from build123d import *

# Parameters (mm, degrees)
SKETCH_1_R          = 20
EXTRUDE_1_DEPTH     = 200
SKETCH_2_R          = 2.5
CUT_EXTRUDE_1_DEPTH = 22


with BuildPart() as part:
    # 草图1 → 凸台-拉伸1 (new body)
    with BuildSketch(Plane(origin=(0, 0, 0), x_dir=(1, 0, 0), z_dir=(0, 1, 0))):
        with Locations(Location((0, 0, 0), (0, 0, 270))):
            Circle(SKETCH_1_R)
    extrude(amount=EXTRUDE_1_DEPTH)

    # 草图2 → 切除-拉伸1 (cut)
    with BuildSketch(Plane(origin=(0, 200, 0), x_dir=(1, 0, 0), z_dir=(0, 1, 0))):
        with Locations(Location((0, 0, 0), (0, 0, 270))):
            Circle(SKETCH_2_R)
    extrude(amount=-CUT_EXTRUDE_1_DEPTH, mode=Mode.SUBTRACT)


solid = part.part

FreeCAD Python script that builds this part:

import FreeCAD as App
import Part
import Sketcher
Q = App.Units.Quantity

doc = App.newDocument("Part")
params = doc.addObject("Spreadsheet::Sheet", "Params")
for row, (alias, value) in enumerate([
    ("sketch1_diameter", "40 mm"),
    ("pad1_length", "200 mm"),
    ("sketch2_diameter", "5 mm"),
    ("pocket1_length", "22 mm"),
], start=1):
    params.set(f"A{row}", alias)
    params.set(f"B{row}", "=" + value)
    params.setAlias(f"B{row}", alias)

body = doc.addObject("PartDesign::Body", "Body")

# Sketch on XZ plane
sketch1 = doc.addObject("Sketcher::SketchObject", "Sketch")
body.addObject(sketch1)
sketch1.AttachmentSupport = (doc.XZ_Plane, [""])
sketch1.MapMode = "FlatFace"
sketch1.addGeometry(Part.Circle(App.Vector(0, 0, 0), App.Vector(0, 0, 1), 20), False)
sketch1.addConstraint(Sketcher.Constraint("Coincident", 0, 3, -1, 1))
sketch1.addConstraint(Sketcher.Constraint("Diameter", 0, Q("40 mm")))
sketch1.setExpression("Constraints[1]", "Params.sketch1_diameter")
pad1 = doc.addObject("PartDesign::Pad", "Pad")
body.addObject(pad1)
pad1.Profile = sketch1
pad1.setExpression("Length", "Params.pad1_length")
pad1.Reversed = True

# Sketch on XZ plane
sketch2 = doc.addObject("Sketcher::SketchObject", "Sketch001")
body.addObject(sketch2)
sketch2.AttachmentSupport = (doc.XZ_Plane, [""])
sketch2.MapMode = "FlatFace"
sketch2.AttachmentOffset = App.Placement(App.Vector(0, 0, -200), App.Rotation())
sketch2.addGeometry(Part.Circle(App.Vector(0, 0, 0), App.Vector(0, 0, 1), 2.5), False)
sketch2.addConstraint(Sketcher.Constraint("Coincident", 0, 3, -1, 1))
sketch2.addConstraint(Sketcher.Constraint("Diameter", 0, Q("5 mm")))
sketch2.setExpression("Constraints[1]", "Params.sketch2_diameter")
pocket1 = doc.addObject("PartDesign::Pocket", "Pocket")
body.addObject(pocket1)
pocket1.Profile = sketch2
pocket1.setExpression("Length", "Params.pocket1_length")
pocket1.Reversed = True

doc.recompute()
